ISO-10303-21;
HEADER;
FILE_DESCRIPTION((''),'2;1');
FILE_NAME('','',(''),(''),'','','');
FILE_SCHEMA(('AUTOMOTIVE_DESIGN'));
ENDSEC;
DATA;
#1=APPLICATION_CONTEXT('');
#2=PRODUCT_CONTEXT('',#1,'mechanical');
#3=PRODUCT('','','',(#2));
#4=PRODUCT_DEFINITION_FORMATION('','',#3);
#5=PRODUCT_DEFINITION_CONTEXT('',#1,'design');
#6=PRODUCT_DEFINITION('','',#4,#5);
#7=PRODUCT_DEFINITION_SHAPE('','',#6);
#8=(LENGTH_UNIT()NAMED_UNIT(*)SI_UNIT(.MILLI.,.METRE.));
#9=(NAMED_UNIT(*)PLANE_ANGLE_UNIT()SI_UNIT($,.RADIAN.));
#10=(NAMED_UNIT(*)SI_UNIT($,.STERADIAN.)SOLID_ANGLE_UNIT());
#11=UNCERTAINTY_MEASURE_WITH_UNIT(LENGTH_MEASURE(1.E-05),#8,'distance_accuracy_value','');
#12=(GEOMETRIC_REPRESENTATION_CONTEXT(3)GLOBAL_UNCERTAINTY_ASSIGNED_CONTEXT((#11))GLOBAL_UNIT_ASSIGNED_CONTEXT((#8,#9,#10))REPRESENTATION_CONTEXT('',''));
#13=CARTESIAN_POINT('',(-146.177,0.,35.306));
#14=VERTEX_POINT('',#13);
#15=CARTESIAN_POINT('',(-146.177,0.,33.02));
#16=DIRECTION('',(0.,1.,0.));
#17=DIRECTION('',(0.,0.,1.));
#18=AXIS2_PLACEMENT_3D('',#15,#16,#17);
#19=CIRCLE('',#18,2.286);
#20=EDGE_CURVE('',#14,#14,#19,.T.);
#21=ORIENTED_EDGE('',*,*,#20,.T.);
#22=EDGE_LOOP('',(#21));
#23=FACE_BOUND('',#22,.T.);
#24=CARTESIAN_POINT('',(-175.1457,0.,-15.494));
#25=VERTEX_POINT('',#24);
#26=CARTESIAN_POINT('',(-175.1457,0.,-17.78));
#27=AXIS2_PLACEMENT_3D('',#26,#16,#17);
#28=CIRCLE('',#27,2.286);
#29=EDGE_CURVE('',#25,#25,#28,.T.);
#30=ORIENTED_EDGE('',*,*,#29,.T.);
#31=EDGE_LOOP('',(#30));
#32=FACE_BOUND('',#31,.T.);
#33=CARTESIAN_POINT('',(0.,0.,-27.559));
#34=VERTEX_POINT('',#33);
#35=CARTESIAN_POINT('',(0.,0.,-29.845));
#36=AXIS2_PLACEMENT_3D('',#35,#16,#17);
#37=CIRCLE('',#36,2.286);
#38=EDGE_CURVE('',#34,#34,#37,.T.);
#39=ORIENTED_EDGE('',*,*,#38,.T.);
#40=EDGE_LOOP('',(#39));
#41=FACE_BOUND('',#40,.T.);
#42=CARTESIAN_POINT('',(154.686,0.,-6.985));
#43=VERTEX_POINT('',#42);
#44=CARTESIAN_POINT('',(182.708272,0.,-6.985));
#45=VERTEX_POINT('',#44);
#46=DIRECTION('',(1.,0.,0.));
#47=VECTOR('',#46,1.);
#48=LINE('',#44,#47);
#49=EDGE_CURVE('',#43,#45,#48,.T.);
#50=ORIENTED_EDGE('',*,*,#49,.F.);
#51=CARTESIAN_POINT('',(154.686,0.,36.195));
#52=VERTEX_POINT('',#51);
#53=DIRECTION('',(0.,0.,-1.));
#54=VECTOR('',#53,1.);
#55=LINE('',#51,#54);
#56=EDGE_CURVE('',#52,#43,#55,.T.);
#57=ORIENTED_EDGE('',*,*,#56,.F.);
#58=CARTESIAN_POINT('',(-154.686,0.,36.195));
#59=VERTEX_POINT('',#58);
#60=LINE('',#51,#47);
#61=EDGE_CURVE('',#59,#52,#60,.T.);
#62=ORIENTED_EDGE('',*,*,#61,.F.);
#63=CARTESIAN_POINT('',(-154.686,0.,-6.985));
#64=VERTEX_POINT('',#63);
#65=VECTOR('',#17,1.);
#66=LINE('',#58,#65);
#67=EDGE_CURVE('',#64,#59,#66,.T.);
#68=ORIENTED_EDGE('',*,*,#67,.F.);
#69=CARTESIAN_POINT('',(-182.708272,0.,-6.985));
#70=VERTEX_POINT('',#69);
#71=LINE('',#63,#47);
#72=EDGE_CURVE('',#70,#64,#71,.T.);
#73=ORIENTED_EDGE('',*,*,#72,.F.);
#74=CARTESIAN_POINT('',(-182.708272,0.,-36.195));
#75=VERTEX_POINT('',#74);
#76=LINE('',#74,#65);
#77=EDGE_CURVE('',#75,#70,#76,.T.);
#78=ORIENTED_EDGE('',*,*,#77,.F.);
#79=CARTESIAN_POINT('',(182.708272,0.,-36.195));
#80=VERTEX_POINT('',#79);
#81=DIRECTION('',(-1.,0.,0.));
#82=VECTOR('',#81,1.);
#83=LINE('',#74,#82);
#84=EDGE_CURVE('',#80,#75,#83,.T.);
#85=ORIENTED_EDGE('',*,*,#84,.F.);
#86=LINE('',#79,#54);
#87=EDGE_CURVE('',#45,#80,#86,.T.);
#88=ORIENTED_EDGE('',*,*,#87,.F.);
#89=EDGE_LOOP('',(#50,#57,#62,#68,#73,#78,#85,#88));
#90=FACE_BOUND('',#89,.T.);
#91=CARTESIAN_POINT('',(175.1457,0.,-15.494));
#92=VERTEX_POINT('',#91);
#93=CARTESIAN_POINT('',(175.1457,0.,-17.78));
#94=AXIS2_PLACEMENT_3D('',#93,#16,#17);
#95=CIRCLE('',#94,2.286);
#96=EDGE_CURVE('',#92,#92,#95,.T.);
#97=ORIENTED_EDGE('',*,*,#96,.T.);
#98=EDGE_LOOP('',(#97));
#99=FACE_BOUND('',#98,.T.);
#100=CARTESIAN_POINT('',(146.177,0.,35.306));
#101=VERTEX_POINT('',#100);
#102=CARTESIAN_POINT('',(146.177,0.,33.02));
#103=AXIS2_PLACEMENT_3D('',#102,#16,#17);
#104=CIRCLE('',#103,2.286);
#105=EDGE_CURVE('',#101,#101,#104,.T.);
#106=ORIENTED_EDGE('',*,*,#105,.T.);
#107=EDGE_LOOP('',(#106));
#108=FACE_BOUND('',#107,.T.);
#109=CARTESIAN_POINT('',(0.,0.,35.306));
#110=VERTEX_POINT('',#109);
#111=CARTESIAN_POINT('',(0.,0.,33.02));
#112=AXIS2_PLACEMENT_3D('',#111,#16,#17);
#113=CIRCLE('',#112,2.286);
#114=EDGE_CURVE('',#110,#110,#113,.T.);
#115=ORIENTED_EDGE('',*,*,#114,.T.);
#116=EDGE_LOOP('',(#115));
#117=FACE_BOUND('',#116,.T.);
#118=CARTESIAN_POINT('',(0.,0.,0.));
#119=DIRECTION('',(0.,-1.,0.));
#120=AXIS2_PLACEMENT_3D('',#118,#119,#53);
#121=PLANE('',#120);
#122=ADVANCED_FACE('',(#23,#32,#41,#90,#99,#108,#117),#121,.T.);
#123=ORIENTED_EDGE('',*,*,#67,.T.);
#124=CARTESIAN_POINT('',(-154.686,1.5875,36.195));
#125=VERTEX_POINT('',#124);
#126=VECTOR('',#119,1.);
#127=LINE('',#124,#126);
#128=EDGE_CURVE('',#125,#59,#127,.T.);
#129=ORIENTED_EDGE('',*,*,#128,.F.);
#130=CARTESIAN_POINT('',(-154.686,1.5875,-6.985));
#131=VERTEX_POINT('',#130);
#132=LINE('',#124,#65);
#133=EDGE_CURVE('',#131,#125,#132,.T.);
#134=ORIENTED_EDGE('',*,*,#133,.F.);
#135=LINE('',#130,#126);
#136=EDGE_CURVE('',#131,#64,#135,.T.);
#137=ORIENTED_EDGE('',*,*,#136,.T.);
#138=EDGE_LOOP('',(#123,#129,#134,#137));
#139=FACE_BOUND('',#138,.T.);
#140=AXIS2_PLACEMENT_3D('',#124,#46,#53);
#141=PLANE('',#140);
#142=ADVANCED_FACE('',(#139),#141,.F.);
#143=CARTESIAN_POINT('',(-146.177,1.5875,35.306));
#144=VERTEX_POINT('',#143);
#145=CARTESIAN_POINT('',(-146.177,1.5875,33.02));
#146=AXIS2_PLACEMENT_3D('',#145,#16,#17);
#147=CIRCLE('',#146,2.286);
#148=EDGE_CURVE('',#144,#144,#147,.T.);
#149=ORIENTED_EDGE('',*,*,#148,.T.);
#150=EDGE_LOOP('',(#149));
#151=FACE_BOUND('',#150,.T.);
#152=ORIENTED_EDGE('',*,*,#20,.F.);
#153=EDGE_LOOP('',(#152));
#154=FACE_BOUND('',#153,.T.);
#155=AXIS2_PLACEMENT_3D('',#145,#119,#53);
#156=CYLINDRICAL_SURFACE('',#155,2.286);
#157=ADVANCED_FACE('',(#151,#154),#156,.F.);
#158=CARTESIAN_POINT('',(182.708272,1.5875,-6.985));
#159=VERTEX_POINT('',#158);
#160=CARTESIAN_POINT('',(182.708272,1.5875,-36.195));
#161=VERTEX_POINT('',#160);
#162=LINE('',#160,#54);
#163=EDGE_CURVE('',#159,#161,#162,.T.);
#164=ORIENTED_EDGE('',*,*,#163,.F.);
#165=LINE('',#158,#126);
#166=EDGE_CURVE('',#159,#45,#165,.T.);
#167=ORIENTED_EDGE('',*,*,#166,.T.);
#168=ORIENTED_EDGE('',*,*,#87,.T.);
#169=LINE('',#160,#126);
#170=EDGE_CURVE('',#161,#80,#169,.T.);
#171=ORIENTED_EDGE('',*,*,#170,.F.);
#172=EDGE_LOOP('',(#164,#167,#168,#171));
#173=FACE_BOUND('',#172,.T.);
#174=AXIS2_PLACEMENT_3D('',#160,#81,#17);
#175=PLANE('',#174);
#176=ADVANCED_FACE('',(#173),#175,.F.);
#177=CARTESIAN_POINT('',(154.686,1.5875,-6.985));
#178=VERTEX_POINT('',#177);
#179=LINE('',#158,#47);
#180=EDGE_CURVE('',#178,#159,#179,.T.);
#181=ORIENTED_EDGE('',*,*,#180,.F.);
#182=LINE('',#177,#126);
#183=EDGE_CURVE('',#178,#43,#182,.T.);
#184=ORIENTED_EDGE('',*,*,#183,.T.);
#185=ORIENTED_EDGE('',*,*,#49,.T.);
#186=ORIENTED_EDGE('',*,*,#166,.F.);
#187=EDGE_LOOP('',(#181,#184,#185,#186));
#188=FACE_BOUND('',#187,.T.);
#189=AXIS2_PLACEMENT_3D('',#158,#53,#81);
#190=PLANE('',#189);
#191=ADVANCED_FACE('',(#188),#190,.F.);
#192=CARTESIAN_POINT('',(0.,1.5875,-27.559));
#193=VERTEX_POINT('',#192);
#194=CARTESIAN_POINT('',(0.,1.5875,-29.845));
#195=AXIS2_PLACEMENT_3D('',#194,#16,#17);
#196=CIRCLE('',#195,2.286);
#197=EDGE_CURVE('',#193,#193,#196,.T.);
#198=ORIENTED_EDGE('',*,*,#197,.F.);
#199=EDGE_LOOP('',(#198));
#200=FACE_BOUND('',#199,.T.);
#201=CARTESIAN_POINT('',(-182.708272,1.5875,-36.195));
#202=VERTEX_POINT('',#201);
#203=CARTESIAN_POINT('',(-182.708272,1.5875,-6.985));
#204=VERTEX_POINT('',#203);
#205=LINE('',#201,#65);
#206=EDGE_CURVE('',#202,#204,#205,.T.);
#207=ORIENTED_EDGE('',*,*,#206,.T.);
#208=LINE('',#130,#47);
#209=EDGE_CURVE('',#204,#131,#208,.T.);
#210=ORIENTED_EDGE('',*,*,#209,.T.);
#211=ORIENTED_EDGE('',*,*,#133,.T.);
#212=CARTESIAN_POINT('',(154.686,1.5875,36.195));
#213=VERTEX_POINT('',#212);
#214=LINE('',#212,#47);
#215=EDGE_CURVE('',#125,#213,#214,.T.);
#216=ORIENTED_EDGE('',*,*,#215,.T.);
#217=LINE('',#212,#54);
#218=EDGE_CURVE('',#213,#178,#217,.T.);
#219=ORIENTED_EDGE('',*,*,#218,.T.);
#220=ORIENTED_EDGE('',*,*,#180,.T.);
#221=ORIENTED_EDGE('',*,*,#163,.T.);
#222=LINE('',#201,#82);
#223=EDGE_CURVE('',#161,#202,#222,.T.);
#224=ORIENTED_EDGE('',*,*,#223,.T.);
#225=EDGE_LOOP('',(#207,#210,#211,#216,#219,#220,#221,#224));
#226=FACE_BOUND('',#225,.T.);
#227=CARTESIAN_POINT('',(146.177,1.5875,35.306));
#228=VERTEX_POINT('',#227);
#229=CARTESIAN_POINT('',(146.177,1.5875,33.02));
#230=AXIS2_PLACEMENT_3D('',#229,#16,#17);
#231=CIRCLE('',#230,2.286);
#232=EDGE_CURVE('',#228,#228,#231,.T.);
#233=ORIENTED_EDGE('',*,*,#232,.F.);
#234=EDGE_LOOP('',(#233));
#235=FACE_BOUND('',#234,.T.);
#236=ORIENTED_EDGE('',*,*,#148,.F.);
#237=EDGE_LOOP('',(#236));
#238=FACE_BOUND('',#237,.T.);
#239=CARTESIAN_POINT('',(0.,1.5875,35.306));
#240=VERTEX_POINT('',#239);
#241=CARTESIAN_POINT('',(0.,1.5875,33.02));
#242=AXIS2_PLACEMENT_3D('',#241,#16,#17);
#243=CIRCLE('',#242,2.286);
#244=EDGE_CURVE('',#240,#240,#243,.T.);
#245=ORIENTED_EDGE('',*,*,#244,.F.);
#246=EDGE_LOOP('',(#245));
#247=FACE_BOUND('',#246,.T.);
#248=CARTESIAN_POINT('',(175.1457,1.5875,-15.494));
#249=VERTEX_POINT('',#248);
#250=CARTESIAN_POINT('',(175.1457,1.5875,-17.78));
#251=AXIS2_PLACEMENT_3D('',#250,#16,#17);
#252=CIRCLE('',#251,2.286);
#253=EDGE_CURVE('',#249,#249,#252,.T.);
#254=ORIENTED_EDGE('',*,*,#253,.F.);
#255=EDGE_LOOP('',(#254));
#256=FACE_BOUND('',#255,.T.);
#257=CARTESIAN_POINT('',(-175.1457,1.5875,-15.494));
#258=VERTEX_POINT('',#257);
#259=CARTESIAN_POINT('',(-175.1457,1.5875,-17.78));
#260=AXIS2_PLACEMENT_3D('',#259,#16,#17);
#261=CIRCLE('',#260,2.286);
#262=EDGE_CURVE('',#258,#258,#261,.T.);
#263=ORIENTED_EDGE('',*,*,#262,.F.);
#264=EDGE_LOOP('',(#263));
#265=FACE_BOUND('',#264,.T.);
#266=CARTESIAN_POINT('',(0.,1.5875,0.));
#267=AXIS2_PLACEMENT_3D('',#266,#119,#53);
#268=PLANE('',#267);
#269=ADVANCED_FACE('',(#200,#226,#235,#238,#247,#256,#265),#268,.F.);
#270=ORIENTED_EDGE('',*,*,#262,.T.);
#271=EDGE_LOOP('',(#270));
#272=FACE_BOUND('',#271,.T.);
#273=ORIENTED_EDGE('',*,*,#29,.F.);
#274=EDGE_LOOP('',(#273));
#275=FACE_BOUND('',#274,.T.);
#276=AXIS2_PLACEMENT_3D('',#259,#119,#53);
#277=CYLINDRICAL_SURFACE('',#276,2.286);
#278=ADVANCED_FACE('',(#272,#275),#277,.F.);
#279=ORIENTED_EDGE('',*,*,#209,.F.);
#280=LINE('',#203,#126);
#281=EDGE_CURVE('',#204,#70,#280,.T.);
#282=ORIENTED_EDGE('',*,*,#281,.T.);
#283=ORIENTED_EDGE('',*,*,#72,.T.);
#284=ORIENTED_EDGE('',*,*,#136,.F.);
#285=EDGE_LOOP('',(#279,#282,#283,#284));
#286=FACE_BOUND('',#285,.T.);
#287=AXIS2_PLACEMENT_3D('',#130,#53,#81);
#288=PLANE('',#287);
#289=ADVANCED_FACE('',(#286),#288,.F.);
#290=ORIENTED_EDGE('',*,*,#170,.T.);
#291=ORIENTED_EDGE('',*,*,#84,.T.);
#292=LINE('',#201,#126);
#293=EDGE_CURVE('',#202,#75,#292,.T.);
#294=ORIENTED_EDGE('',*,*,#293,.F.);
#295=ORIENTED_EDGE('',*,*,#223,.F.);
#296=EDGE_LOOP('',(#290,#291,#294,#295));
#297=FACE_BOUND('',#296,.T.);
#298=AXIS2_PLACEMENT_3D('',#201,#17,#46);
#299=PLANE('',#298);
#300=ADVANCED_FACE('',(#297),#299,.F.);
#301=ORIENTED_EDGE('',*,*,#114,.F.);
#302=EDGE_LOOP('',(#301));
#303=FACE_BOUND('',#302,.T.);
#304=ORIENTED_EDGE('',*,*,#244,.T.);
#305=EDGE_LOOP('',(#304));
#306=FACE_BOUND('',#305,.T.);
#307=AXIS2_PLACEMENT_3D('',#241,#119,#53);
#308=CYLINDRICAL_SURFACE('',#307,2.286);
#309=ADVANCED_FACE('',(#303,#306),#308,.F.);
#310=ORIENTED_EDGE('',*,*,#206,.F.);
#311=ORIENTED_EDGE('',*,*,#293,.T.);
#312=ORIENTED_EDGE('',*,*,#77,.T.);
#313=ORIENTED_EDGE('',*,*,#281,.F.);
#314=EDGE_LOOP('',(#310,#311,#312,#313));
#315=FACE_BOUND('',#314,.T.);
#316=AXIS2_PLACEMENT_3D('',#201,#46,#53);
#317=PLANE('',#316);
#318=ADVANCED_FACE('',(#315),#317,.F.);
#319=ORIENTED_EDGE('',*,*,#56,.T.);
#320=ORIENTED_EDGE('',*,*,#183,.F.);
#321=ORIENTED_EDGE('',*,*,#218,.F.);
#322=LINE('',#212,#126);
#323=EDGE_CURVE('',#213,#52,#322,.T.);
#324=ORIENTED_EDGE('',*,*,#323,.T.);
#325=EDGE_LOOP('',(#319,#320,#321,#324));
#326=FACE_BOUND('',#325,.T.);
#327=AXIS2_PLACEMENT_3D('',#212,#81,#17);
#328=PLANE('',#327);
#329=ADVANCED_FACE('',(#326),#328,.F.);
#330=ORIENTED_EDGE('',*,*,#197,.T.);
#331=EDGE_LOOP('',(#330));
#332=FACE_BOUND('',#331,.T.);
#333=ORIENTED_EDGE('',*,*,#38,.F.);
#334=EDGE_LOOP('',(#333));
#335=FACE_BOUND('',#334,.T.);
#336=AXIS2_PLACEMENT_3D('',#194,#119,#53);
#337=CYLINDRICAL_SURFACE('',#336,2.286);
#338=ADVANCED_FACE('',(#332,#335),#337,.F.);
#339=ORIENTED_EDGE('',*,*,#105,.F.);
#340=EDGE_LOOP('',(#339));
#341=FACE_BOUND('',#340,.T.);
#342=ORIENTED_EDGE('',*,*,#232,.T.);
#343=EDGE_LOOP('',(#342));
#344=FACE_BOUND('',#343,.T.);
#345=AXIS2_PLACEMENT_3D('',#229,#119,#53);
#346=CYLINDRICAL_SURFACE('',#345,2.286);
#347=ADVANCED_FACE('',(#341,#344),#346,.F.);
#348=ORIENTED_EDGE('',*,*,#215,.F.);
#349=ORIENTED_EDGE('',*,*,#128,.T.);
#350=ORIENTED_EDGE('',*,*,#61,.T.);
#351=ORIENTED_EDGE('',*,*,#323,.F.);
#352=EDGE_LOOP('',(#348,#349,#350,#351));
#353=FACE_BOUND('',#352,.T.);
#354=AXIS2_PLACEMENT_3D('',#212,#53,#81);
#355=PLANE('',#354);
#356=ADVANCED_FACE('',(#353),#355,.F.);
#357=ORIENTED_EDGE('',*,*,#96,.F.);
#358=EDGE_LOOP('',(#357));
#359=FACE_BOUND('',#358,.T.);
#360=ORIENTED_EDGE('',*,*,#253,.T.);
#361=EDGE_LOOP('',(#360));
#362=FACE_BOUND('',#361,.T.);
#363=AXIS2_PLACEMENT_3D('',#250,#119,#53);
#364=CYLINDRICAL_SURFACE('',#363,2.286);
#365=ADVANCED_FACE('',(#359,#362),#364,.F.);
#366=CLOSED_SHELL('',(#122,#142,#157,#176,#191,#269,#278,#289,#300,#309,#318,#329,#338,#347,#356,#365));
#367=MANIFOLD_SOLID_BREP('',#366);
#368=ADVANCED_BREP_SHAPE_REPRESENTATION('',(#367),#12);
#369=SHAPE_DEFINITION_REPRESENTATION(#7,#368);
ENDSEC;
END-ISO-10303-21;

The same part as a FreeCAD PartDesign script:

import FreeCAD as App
import Part
import Sketcher

V = App.Vector
Q = App.Units.Quantity

doc = App.newDocument("Part")
params = doc.addObject("Spreadsheet::Sheet", "Params")
for row, (alias, value) in enumerate([
    ("sketch1_diameter", "0.18 in"),
    ("sketch1_height", "1.7 in"),
    ("sketch1_width", "12.18 in"),
    ("sketch1_height2", "1.15 in"),
    ("pad1_length", "0.0625 in"),
], start=1):
    params.set(f"A{row}", alias)
    params.set(f"B{row}", "=" + value)
    params.setAlias(f"B{row}", alias)

body = doc.addObject("PartDesign::Body", "Body")

# Sketch on XZ plane
sketch1 = body.newObject("Sketcher::SketchObject", "Sketch")
sketch1.AttachmentSupport = (doc.getObject("XZ_Plane"), [""])
sketch1.MapMode = "FlatFace"
sketch1.addGeometry([
    Part.LineSegment(V(-154.7, -7, 0), V(-154.7, 36.2, 0)),  # 0
    Part.LineSegment(V(-154.7, 36.2, 0), V(154.7, 36.2, 0)),  # 1
    Part.LineSegment(V(154.7, 36.2, 0), V(154.7, -7, 0)),  # 2
    Part.LineSegment(V(154.7, -7, 0), V(182.7, -7, 0)),  # 3
    Part.LineSegment(V(182.7, -7, 0), V(182.7, -36.2, 0)),  # 4
    Part.LineSegment(V(182.7, -36.2, 0), V(-182.7, -36.2, 0)),  # 5
    Part.LineSegment(V(-182.7, -36.2, 0), V(-182.7, -7, 0)),  # 6
    Part.LineSegment(V(-182.7, -7, 0), V(-154.7, -7, 0)),  # 7
    Part.Circle(V(146.2, 33, 0), V(0, 0, 1), 2.3),  # 8
    Part.Circle(V(0, 33, 0), V(0, 0, 1), 2.3),  # 9
    Part.Circle(V(-146.2, 33, 0), V(0, 0, 1), 2.3),  # 10
    Part.Circle(V(175.1, -17.8, 0), V(0, 0, 1), 2.3),  # 11
    Part.Circle(V(0, -29.8, 0), V(0, 0, 1), 2.3),  # 12
    Part.Circle(V(-175.1, -17.8, 0), V(0, 0, 1), 2.3),  # 13
], False)
sketch1.addConstraint([
    Sketcher.Constraint("Coincident", 0, 2, 1, 1),
    Sketcher.Constraint("Coincident", 1, 2, 2, 1),
    Sketcher.Constraint("Coincident", 2, 2, 3, 1),
    Sketcher.Constraint("Coincident", 3, 2, 4, 1),
    Sketcher.Constraint("Coincident", 4, 2, 5, 1),
    Sketcher.Constraint("Coincident", 5, 2, 6, 1),
    Sketcher.Constraint("Coincident", 6, 2, 7, 1),
    Sketcher.Constraint("Coincident", 7, 2, 0, 1),
    Sketcher.Constraint("Vertical", 0),
    Sketcher.Constraint("Horizontal", 1),
    Sketcher.Constraint("Vertical", 2),
    Sketcher.Constraint("Horizontal", 3),
    Sketcher.Constraint("Vertical", 4),
    Sketcher.Constraint("Horizontal", 5),
    Sketcher.Constraint("Vertical", 6),
    Sketcher.Constraint("Horizontal", 7),
    Sketcher.Constraint("Equal", 8, 9),
    Sketcher.Constraint("Equal", 9, 10),
    Sketcher.Constraint("Equal", 10, 11),
    Sketcher.Constraint("Equal", 11, 12),
    Sketcher.Constraint("Equal", 12, 13),
    Sketcher.Constraint("Symmetric", 8, 3, 10, 3, -2),
    Sketcher.Constraint("Symmetric", 11, 3, 13, 3, -2),
    Sketcher.Constraint("Symmetric", 3, 2, 6, 2, -2),
    Sketcher.Constraint("PointOnObject", 9, 3, -2),
    Sketcher.Constraint("PointOnObject", 12, 3, -2),
    Sketcher.Constraint("Horizontal", 8, 3, 9, 3),
    Sketcher.Constraint("Equal", 3, 7),
    Sketcher.Constraint("Diameter", 8, Q("0.18 in")),
    Sketcher.Constraint("DistanceY", 0, 1, 0, 2, Q("1.7 in")),
    Sketcher.Constraint("DistanceY", 11, 3, 8, 3, Q("2 in")),
    Sketcher.Constraint("DistanceX", 1, 1, 1, 2, Q("12.18 in")),
    Sketcher.Constraint("DistanceY", 4, 2, 4, 1, Q("1.15 in")),
    Sketcher.Constraint("DistanceY", -1, 1, 8, 3, Q("1.3 in")),
    Sketcher.Constraint("DistanceY", 12, 3, 0, 2, Q("2.6 in")),
    Sketcher.Constraint("DistanceX", 10, 3, 8, 3, Q("11.51 in")),
    Sketcher.Constraint("DistanceY", 12, 3, -1, 1, Q("1.175 in")),
    Sketcher.Constraint("DistanceX", 13, 3, 11, 3, Q("13.791 in")),
    Sketcher.Constraint("DistanceX", 3, 1, 3, 2, 28.022272),
])
sketch1.setExpression("Constraints[28]", "Params.sketch1_diameter")
sketch1.setExpression("Constraints[29]", "Params.sketch1_height")
sketch1.setExpression("Constraints[31]", "Params.sketch1_width")
sketch1.setExpression("Constraints[32]", "Params.sketch1_height2")
pad1 = body.newObject("PartDesign::Pad", "Pad")
pad1.Profile = sketch1
pad1.setExpression("Length", "Params.pad1_length")
pad1.Reversed = True

doc.recompute()
